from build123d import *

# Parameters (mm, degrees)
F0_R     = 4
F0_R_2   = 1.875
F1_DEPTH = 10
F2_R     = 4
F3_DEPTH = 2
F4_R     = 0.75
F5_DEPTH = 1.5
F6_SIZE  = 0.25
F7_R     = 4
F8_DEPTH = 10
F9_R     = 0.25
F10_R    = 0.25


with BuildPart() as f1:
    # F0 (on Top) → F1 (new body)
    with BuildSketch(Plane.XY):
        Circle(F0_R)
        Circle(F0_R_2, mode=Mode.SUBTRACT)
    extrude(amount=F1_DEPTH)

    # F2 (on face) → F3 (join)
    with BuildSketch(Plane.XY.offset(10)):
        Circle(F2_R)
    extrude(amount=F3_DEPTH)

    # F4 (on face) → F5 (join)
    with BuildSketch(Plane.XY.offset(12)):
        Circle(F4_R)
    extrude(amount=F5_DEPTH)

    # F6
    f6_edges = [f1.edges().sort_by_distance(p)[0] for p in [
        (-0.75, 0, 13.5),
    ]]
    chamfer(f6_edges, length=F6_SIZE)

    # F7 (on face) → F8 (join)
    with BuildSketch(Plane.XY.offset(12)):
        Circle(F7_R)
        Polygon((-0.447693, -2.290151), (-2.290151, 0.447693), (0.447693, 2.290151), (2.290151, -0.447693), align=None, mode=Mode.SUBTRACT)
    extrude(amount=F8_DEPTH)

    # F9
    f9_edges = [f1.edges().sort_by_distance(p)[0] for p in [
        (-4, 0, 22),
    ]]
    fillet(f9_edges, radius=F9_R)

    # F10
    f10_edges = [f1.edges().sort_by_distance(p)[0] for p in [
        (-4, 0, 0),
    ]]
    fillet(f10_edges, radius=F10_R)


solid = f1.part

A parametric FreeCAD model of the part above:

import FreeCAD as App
import Part
import Sketcher


def edges_at(feature, points):
    """Names of the edges that pass closest to the given points."""
    edges = feature.Shape.Edges
    near = lambda p: min(range(len(edges)), key=lambda i: edges[i].distToShape(Part.Vertex(*p))[0])
    return sorted({f"Edge{near(p) + 1}" for p in points})

doc = App.newDocument("Part")
params = doc.addObject("Spreadsheet::Sheet", "Params")
for row, (alias, value) in enumerate([
    ("sketch1_diameter", "8 mm"),
    ("sketch1_diameter2", "3.75 mm"),
    ("pad1_length", "10 mm"),
    ("sketch2_diameter", "8 mm"),
    ("pad2_length", "2 mm"),
    ("sketch3_diameter", "1.5 mm"),
    ("pad3_length", "1.5 mm"),
    ("chamfer_size", "0.25 mm"),
    ("sketch4_diameter", "8 mm"),
    ("pad4_length", "10 mm"),
    ("fillet_radius", "0.25 mm"),
    ("fillet2_radius", "0.25 mm"),
], start=1):
    params.set(f"A{row}", alias)
    params.set(f"B{row}", "=" + value)
    params.setAlias(f"B{row}", alias)

body = doc.addObject("PartDesign::Body", "Body")

sketch1 = body.newObject("Sketcher::SketchObject", "Sketch")
sketch1.AttachmentSupport = (doc.getObject("XY_Plane"), [""])
sketch1.MapMode = "FlatFace"
sketch1.addGeometry(Part.Circle(App.Vector(0, 0, 0), App.Vector(0, 0, 1), 4), False)
sketch1.addGeometry(Part.Circle(App.Vector(0, 0, 0), App.Vector(0, 0, 1), 1.9), False)
sketch1.addConstraint(Sketcher.Constraint("Coincident", 0, 3, -1, 1))
sketch1.addConstraint(Sketcher.Constraint("Coincident", 1, 3, -1, 1))
sketch1.addConstraint(Sketcher.Constraint("Diameter", 0, 8.0))
sketch1.addConstraint(Sketcher.Constraint("Diameter", 1, 3.75))
sketch1.setExpression("Constraints[2]", "Params.sketch1_diameter")
sketch1.setExpression("Constraints[3]", "Params.sketch1_diameter2")
pad1 = body.newObject("PartDesign::Pad", "Pad")
pad1.Profile = sketch1
pad1.setExpression("Length", "Params.pad1_length")

sketch2 = body.newObject("Sketcher::SketchObject", "Sketch001")
sketch2.AttachmentSupport = (doc.getObject("XY_Plane"), [""])
sketch2.MapMode = "FlatFace"
sketch2.AttachmentOffset = App.Placement(App.Vector(0, 0, 10), App.Rotation())
sketch2.addGeometry(Part.Circle(App.Vector(0, 0, 0), App.Vector(0, 0, 1), 4), False)
sketch2.addConstraint(Sketcher.Constraint("Coincident", 0, 3, -1, 1))
sketch2.addConstraint(Sketcher.Constraint("Diameter", 0, 8.0))
sketch2.setExpression("Constraints[1]", "Params.sketch2_diameter")
pad2 = body.newObject("PartDesign::Pad", "Pad001")
pad2.Profile = sketch2
pad2.setExpression("Length", "Params.pad2_length")

sketch3 = body.newObject("Sketcher::SketchObject", "Sketch002")
sketch3.AttachmentSupport = (doc.getObject("XY_Plane"), [""])
sketch3.MapMode = "FlatFace"
sketch3.AttachmentOffset = App.Placement(App.Vector(0, 0, 12), App.Rotation())
sketch3.addGeometry(Part.Circle(App.Vector(0, 0, 0), App.Vector(0, 0, 1), 0.8), False)
sketch3.addConstraint(Sketcher.Constraint("Coincident", 0, 3, -1, 1))
sketch3.addConstraint(Sketcher.Constraint("Diameter", 0, 1.5))
sketch3.setExpression("Constraints[1]", "Params.sketch3_diameter")
pad3 = body.newObject("PartDesign::Pad", "Pad002")
pad3.Profile = sketch3
pad3.setExpression("Length", "Params.pad3_length")
doc.recompute()

chamfer = body.newObject("PartDesign::Chamfer", "Chamfer")
chamfer.Base = (pad3, edges_at(pad3, [(-0.75, 0, 13.5)]))
chamfer.setExpression("Size", "Params.chamfer_size")

sketch4 = body.newObject("Sketcher::SketchObject", "Sketch003")
sketch4.AttachmentSupport = (doc.getObject("XY_Plane"), [""])
sketch4.MapMode = "FlatFace"
sketch4.AttachmentOffset = App.Placement(App.Vector(0, 0, 12), App.Rotation())
sketch4.addGeometry(Part.Circle(App.Vector(0, 0, 0), App.Vector(0, 0, 1), 4), False)
sketch4.addGeometry(Part.LineSegment(App.Vector(2.3, -0.4, 0), App.Vector(-0.4, -2.3, 0)), False)
sketch4.addGeometry(Part.LineSegment(App.Vector(-0.4, -2.3, 0), App.Vector(-2.3, 0.4, 0)), False)
sketch4.addGeometry(Part.LineSegment(App.Vector(-2.3, 0.4, 0), App.Vector(0.4, 2.3, 0)), False)
sketch4.addGeometry(Part.LineSegment(App.Vector(0.4, 2.3, 0), App.Vector(2.3, -0.4, 0)), False)
sketch4.addConstraint(Sketcher.Constraint("Coincident", 1, 2, 2, 1))
sketch4.addConstraint(Sketcher.Constraint("Coincident", 2, 2, 3, 1))
sketch4.addConstraint(Sketcher.Constraint("Coincident", 3, 2, 4, 1))
sketch4.addConstraint(Sketcher.Constraint("Coincident", 4, 2, 1, 1))
sketch4.addConstraint(Sketcher.Constraint("Coincident", 0, 3, -1, 1))
sketch4.addConstraint(Sketcher.Constraint("Symmetric", 1, 2, 3, 2, -1, 1))
sketch4.addConstraint(Sketcher.Constraint("Symmetric", 2, 2, 4, 2, -1, 1))
sketch4.addConstraint(Sketcher.Constraint("Perpendicular", 1, 2))
sketch4.addConstraint(Sketcher.Constraint("Equal", 1, 2))
sketch4.addConstraint(Sketcher.Constraint("Diameter", 0, 8.0))
sketch4.addConstraint(Sketcher.Constraint("DistanceY", 1, 2, 3, 2, 4.580302))
sketch4.addConstraint(Sketcher.Constraint("Distance", 1, 3.300067))
sketch4.setExpression("Constraints[9]", "Params.sketch4_diameter")
pad4 = body.newObject("PartDesign::Pad", "Pad003")
pad4.Profile = sketch4
pad4.setExpression("Length", "Params.pad4_length")
doc.recompute()

fillet = body.newObject("PartDesign::Fillet", "Fillet")
fillet.Base = (pad4, edges_at(pad4, [(-4, 0, 22)]))
fillet.setExpression("Radius", "Params.fillet_radius")
doc.recompute()

fillet2 = body.newObject("PartDesign::Fillet", "Fillet001")
fillet2.Base = (fillet, edges_at(fillet, [(-4, 0, 0)]))
fillet2.setExpression("Radius", "Params.fillet2_radius")

doc.recompute()
